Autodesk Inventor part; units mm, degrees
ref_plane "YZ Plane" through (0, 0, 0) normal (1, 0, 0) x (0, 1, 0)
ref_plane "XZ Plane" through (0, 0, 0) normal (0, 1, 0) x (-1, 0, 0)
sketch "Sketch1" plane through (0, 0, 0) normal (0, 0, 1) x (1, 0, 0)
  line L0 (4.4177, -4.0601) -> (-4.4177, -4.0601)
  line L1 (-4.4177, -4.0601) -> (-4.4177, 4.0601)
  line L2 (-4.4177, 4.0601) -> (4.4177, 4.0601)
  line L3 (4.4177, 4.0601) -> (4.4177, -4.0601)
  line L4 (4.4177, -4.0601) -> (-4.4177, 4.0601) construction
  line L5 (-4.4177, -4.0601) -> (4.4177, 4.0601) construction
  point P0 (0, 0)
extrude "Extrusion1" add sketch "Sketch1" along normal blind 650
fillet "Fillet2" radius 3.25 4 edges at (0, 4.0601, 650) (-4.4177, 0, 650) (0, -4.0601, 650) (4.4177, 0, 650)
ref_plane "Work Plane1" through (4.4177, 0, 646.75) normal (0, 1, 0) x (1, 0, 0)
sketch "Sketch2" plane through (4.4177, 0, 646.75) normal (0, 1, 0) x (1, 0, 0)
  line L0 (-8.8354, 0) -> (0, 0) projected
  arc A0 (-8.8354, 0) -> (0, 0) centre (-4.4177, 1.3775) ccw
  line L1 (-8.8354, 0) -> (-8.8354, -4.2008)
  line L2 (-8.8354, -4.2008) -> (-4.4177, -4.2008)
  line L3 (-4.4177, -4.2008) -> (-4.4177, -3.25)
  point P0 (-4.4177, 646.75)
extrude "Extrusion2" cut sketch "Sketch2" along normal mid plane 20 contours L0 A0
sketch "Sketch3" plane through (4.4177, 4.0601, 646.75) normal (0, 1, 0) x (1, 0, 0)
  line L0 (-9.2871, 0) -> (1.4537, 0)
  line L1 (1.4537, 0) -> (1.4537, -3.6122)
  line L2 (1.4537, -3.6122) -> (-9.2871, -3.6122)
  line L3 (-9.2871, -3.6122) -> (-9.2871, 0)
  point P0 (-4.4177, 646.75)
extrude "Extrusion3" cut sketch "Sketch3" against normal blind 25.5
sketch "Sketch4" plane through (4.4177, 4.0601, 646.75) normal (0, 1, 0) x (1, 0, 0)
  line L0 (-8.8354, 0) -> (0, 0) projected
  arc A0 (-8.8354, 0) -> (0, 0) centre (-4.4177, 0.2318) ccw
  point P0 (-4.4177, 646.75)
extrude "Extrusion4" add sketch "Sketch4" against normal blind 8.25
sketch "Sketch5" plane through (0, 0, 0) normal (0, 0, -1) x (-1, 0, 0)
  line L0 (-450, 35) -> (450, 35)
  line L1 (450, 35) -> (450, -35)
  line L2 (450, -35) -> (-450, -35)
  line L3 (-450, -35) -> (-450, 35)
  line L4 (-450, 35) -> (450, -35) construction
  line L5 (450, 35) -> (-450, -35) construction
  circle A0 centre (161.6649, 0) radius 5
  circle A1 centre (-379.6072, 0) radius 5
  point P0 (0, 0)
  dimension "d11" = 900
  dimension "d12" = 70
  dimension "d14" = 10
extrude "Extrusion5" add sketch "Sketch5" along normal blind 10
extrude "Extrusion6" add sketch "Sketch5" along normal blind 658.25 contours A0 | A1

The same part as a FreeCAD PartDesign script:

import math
import FreeCAD as App
import Part
import Sketcher
from FreeCAD import Vector


def edges_at(feature, points):
    """Names of the edges that pass closest to the given points."""
    edges = feature.Shape.Edges
    near = lambda p: min(range(len(edges)), key=lambda i: edges[i].distToShape(Part.Vertex(*p))[0])
    return sorted({f"Edge{near(p) + 1}" for p in points})

doc = App.newDocument("Part")
body = doc.addObject("PartDesign::Body", "Body")
body.AllowCompound = True

sketch1 = body.newObject("Sketcher::SketchObject", "Sketch")
sketch1.AttachmentSupport = (doc.getObject("XY_Plane"), [""])
sketch1.MapMode = "FlatFace"
sketch1.addGeometry(Part.LineSegment(Vector(-4, -4, 0), Vector(4, -4, 0)), False)
sketch1.addGeometry(Part.LineSegment(Vector(4, -4, 0), Vector(4, 4, 0)), False)
sketch1.addGeometry(Part.LineSegment(Vector(4, 4, 0), Vector(-4, 4, 0)), False)
sketch1.addGeometry(Part.LineSegment(Vector(-4, 4, 0), Vector(-4, -4, 0)), False)
sketch1.addConstraint(Sketcher.Constraint("Coincident", 0, 2, 1, 1))
sketch1.addConstraint(Sketcher.Constraint("Coincident", 1, 2, 2, 1))
sketch1.addConstraint(Sketcher.Constraint("Coincident", 2, 2, 3, 1))
sketch1.addConstraint(Sketcher.Constraint("Coincident", 3, 2, 0, 1))
sketch1.addConstraint(Sketcher.Constraint("Horizontal", 0))
sketch1.addConstraint(Sketcher.Constraint("Vertical", 1))
sketch1.addConstraint(Sketcher.Constraint("Horizontal", 2))
sketch1.addConstraint(Sketcher.Constraint("Vertical", 3))
sketch1.addConstraint(Sketcher.Constraint("Symmetric", 0, 2, 2, 2, -1, 1))
sketch1.addConstraint(Sketcher.Constraint("DistanceY", 0, 2, -1, 1, 4.06))
sketch1.addConstraint(Sketcher.Constraint("DistanceX", 0, 1, 0, 2, 8.8354))
pad1 = body.newObject("PartDesign::Pad", "Pad")
pad1.Profile = sketch1
pad1.Length = 650
doc.recompute()

fillet = body.newObject("PartDesign::Fillet", "Fillet")
fillet.Base = (pad1, edges_at(pad1, [
    (0, 4.06, 650),
    (-4.418, 0, 650),
    (0, -4.06, 650),
    (4.418, 0, 650),
]))
fillet.Radius = 3.25

sketch2 = body.newObject("Sketcher::SketchObject", "Sketch001")
sketch2.AttachmentSupport = (doc.getObject("XZ_Plane"), [""])
sketch2.MapMode = "FlatFace"
sketch2.addGeometry(Part.LineSegment(Vector(4.4, 646.8, 0), Vector(-4.4, 646.8, 0)), False)
sketch2.addGeometry(Part.ArcOfCircle(Part.Circle(Vector(0, 645.4, 0), Vector(0, 0, 1), 4.6), math.radians(17), math.radians(163)), False)
sketch2.addConstraint(Sketcher.Constraint("Coincident", 0, 1, 1, 1))
sketch2.addConstraint(Sketcher.Constraint("Coincident", 1, 2, 0, 2))
sketch2.addConstraint(Sketcher.Constraint("Horizontal", 0))
sketch2.addConstraint(Sketcher.Constraint("PointOnObject", 1, 3, -2))
sketch2.addConstraint(Sketcher.Constraint("Radius", 1, 4.6275))
sketch2.addConstraint(Sketcher.Constraint("DistanceY", -1, 1, 0, 1, 646.75))
sketch2.addConstraint(Sketcher.Constraint("DistanceX", 0, 2, 0, 1, 8.8354))
pocket1 = body.newObject("PartDesign::Pocket", "Pocket")
pocket1.Profile = sketch2
pocket1.Length = 20
pocket1.Midplane = True

sketch3 = body.newObject("Sketcher::SketchObject", "Sketch002")
sketch3.AttachmentSupport = (doc.getObject("XZ_Plane"), [""])
sketch3.MapMode = "FlatFace"
sketch3.AttachmentOffset = App.Placement(Vector(0, 0, -4.0601), App.Rotation())
sketch3.addGeometry(Part.LineSegment(Vector(5.9, 646.8, 0), Vector(-4.9, 646.8, 0)), False)
sketch3.addGeometry(Part.LineSegment(Vector(-4.9, 646.8, 0), Vector(-4.9, 650.4, 0)), False)
sketch3.addGeometry(Part.LineSegment(Vector(-4.9, 650.4, 0), Vector(5.9, 650.4, 0)), False)
sketch3.addGeometry(Part.LineSegment(Vector(5.9, 650.4, 0), Vector(5.9, 646.8, 0)), False)
sketch3.addConstraint(Sketcher.Constraint("Coincident", 0, 2, 1, 1))
sketch3.addConstraint(Sketcher.Constraint("Coincident", 1, 2, 2, 1))
sketch3.addConstraint(Sketcher.Constraint("Coincident", 2, 2, 3, 1))
sketch3.addConstraint(Sketcher.Constraint("Coincident", 3, 2, 0, 1))
sketch3.addConstraint(Sketcher.Constraint("Horizontal", 0))
sketch3.addConstraint(Sketcher.Constraint("Vertical", 1))
sketch3.addConstraint(Sketcher.Constraint("Horizontal", 2))
sketch3.addConstraint(Sketcher.Constraint("Vertical", 3))
sketch3.addConstraint(Sketcher.Constraint("DistanceY", -1, 1, 0, 2, 646.75))
sketch3.addConstraint(Sketcher.Constraint("DistanceX", 0, 2, 0, 1, 10.7408))
sketch3.addConstraint(Sketcher.Constraint("DistanceY", 1, 1, 1, 2, 3.6122))
sketch3.addConstraint(Sketcher.Constraint("DistanceX", 0, 2, -1, 1, 4.8694))
pocket2 = body.newObject("PartDesign::Pocket", "Pocket001")
pocket2.Profile = sketch3
pocket2.Length = 25.5
pocket2.Reversed = True

sketch4 = body.newObject("Sketcher::SketchObject", "Sketch003")
sketch4.AttachmentSupport = (doc.getObject("XZ_Plane"), [""])
sketch4.MapMode = "FlatFace"
sketch4.AttachmentOffset = App.Placement(Vector(0, 0, -4.0601), App.Rotation())
sketch4.addGeometry(Part.LineSegment(Vector(4.4, 646.8, 0), Vector(-4.4, 646.8, 0)), False)
sketch4.addGeometry(Part.ArcOfCircle(Part.Circle(Vector(0, 646.5, 0), Vector(0, 0, 1), 4.4), math.radians(3), math.radians(177)), False)
sketch4.addConstraint(Sketcher.Constraint("Coincident", 0, 1, 1, 1))
sketch4.addConstraint(Sketcher.Constraint("Coincident", 1, 2, 0, 2))
sketch4.addConstraint(Sketcher.Constraint("Horizontal", 0))
sketch4.addConstraint(Sketcher.Constraint("PointOnObject", 1, 3, -2))
sketch4.addConstraint(Sketcher.Constraint("Radius", 1, 4.4238))
sketch4.addConstraint(Sketcher.Constraint("DistanceY", -1, 1, 0, 1, 646.75))
sketch4.addConstraint(Sketcher.Constraint("DistanceX", 0, 2, 0, 1, 8.8354))
pad2 = body.newObject("PartDesign::Pad", "Pad001")
pad2.Profile = sketch4
pad2.Length = 8.25

sketch5 = body.newObject("Sketcher::SketchObject", "Sketch004")
sketch5.AttachmentSupport = (doc.getObject("XY_Plane"), [""])
sketch5.MapMode = "FlatFace"
sketch5.addGeometry(Part.LineSegment(Vector(-450, 35, 0), Vector(450, 35, 0)), False)
sketch5.addGeometry(Part.LineSegment(Vector(450, 35, 0), Vector(450, -35, 0)), False)
sketch5.addGeometry(Part.LineSegment(Vector(450, -35, 0), Vector(-450, -35, 0)), False)
sketch5.addGeometry(Part.LineSegment(Vector(-450, -35, 0), Vector(-450, 35, 0)), False)
sketch5.addGeometry(Part.Circle(Vector(380, 0, 0), Vector(0, 0, 1), 5), False)
sketch5.addGeometry(Part.Circle(Vector(-162, 0, 0), Vector(0, 0, 1), 5), False)
sketch5.addConstraint(Sketcher.Constraint("Coincident", 0, 2, 1, 1))
sketch5.addConstraint(Sketcher.Constraint("Coincident", 1, 2, 2, 1))
sketch5.addConstraint(Sketcher.Constraint("Coincident", 2, 2, 3, 1))
sketch5.addConstraint(Sketcher.Constraint("Coincident", 3, 2, 0, 1))
sketch5.addConstraint(Sketcher.Constraint("Horizontal", 0))
sketch5.addConstraint(Sketcher.Constraint("Vertical", 1))
sketch5.addConstraint(Sketcher.Constraint("Horizontal", 2))
sketch5.addConstraint(Sketcher.Constraint("Vertical", 3))
sketch5.addConstraint(Sketcher.Constraint("Equal", 4, 5))
sketch5.addConstraint(Sketcher.Constraint("Symmetric", 0, 2, 2, 2, -1, 1))
sketch5.addConstraint(Sketcher.Constraint("PointOnObject", 4, 3, -1))
sketch5.addConstraint(Sketcher.Constraint("PointOnObject", 5, 3, -1))
sketch5.addConstraint(Sketcher.Constraint("Diameter", 4, 10.0))
sketch5.addConstraint(Sketcher.Constraint("DistanceX", 0, 1, 0, 2, 900.0))
sketch5.addConstraint(Sketcher.Constraint("DistanceY", 1, 2, 1, 1, 70.0))
sketch5.addConstraint(Sketcher.Constraint("DistanceX", 5, 3, -1, 1, 161.665))
sketch5.addConstraint(Sketcher.Constraint("DistanceX", 5, 3, 4, 3, 541.272))
pad3 = body.newObject("PartDesign::Pad", "Pad002")
pad3.Profile = sketch5
pad3.Length = 10
pad3.Reversed = True

sketch6 = body.newObject("Sketcher::SketchObject", "Sketch005")
sketch6.AttachmentSupport = (doc.getObject("XY_Plane"), [""])
sketch6.MapMode = "FlatFace"
sketch6.addGeometry(Part.Circle(Vector(-162, 0, 0), Vector(0, 0, 1), 5), False)
sketch6.addGeometry(Part.Circle(Vector(380, 0, 0), Vector(0, 0, 1), 5), False)
sketch6.addConstraint(Sketcher.Constraint("Equal", 0, 1))
sketch6.addConstraint(Sketcher.Constraint("PointOnObject", 0, 3, -1))
sketch6.addConstraint(Sketcher.Constraint("PointOnObject", 1, 3, -1))
sketch6.addConstraint(Sketcher.Constraint("Diameter", 0, 10.0))
sketch6.addConstraint(Sketcher.Constraint("DistanceX", 0, 3, -1, 1, 161.665))
sketch6.addConstraint(Sketcher.Constraint("DistanceX", 0, 3, 1, 3, 541.272))
pad4 = body.newObject("PartDesign::Pad", "Pad003")
pad4.Profile = sketch6
pad4.Length = 658.25
pad4.Reversed = True

doc.recompute()
